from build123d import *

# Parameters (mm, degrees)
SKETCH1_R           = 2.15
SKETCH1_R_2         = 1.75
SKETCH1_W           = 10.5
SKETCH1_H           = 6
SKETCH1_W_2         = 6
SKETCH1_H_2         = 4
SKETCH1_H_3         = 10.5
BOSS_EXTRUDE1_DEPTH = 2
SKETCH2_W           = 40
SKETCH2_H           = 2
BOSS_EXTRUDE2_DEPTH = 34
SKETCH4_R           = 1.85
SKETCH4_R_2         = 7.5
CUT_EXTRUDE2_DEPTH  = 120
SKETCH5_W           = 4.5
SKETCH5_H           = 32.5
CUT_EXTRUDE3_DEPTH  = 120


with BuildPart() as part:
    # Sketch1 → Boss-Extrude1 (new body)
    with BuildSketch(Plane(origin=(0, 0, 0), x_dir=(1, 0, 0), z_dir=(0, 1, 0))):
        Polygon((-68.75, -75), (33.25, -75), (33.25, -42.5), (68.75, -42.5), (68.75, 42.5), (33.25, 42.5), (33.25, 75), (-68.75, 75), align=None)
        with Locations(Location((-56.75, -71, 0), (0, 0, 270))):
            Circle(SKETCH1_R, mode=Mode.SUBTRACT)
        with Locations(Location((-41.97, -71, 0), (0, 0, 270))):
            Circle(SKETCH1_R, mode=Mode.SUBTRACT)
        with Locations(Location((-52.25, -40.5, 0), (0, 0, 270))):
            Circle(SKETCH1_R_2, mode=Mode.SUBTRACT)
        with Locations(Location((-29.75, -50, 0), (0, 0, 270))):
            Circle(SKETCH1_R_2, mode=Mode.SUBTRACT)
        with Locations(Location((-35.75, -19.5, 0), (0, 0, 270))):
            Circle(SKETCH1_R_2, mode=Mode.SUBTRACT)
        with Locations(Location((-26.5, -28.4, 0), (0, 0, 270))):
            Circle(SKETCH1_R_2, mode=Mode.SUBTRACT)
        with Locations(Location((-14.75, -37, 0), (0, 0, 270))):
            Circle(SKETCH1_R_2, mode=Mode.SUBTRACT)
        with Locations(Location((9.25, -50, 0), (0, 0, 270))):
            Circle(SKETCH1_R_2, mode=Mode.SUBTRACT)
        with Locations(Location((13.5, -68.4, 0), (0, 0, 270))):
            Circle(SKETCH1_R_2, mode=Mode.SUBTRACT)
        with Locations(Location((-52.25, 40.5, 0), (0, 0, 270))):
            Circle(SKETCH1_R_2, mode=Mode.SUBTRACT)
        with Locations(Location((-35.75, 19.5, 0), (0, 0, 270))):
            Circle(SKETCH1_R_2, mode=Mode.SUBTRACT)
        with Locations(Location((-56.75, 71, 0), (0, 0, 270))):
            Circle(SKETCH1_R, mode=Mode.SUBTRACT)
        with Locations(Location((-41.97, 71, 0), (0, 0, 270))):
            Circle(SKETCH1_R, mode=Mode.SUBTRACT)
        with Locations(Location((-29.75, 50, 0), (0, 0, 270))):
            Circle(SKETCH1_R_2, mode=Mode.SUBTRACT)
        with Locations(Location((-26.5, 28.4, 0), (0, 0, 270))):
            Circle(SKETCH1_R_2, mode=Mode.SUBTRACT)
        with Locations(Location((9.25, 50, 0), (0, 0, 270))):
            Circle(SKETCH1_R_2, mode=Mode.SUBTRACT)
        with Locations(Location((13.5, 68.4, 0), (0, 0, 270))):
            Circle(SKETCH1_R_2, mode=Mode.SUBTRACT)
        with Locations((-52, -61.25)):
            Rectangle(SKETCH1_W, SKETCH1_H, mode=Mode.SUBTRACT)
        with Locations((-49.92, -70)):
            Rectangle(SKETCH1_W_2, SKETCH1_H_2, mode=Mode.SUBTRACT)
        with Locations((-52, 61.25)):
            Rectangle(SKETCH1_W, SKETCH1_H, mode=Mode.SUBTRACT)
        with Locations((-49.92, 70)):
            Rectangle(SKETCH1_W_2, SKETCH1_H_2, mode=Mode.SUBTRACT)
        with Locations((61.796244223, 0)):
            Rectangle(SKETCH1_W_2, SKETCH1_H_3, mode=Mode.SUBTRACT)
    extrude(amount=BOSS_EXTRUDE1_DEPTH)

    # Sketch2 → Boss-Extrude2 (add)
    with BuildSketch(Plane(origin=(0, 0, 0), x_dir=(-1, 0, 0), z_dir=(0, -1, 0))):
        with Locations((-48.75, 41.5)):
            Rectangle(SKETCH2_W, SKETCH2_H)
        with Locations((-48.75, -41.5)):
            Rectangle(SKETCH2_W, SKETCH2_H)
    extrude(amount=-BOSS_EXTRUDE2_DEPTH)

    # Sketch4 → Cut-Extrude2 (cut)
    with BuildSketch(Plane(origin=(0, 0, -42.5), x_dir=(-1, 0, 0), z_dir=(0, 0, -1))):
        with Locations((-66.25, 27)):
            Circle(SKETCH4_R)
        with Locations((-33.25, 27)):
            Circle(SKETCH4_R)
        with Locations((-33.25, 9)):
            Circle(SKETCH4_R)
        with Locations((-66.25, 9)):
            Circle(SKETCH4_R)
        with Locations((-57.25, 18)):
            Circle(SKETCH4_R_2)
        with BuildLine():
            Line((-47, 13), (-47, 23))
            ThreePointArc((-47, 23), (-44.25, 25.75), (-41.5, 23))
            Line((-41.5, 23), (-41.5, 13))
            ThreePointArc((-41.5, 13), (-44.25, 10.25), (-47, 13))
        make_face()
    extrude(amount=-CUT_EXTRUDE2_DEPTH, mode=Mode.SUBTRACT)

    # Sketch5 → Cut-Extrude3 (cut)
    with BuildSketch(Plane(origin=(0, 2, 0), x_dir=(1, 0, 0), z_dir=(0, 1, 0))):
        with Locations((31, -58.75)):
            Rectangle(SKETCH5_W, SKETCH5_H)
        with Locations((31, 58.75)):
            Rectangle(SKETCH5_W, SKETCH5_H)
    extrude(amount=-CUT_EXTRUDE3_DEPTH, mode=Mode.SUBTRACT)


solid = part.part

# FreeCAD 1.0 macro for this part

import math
import FreeCAD as App
import Part
import Sketcher
from FreeCAD import Vector


def add_polygon(sketch, points):
    """Adds a closed chain of lines whose ends are joined by coincident constraints."""
    first, n = sketch.GeometryCount, len(points)
    for a, b in zip(points, points[1:] + points[:1]):
        sketch.addGeometry(Part.LineSegment(App.Vector(*a, 0), App.Vector(*b, 0)), False)
    for i in range(n):
        sketch.addConstraint(Sketcher.Constraint("Coincident", first + i, 2, first + (i + 1) % n, 1))

doc = App.newDocument("Part")
body = doc.addObject("PartDesign::Body", "Body")

sketch1 = body.newObject("Sketcher::SketchObject", "Sketch")
sketch1.AttachmentSupport = (doc.getObject("XZ_Plane"), [""])
sketch1.MapMode = "FlatFace"
add_polygon(sketch1, [(-68.8, 75), (33.2, 75), (33.2, 42.5), (68.8, 42.5), (68.8, -42.5), (33.2, -42.5), (33.2, -75), (-68.8, -75)])
sketch1.addGeometry(Part.Circle(Vector(-56.8, 71, 0), Vector(0, 0, 1), 2.1), False)
add_polygon(sketch1, [(-46.9, 72), (-52.9, 72), (-52.9, 68), (-46.9, 68)])
add_polygon(sketch1, [(-46.8, 64.2), (-57.2, 64.2), (-57.2, 58.2), (-46.8, 58.2)])
sketch1.addGeometry(Part.Circle(Vector(-42, 71, 0), Vector(0, 0, 1), 2.1), False)
sketch1.addGeometry(Part.Circle(Vector(-52.2, 40.5, 0), Vector(0, 0, 1), 1.8), False)
sketch1.addGeometry(Part.Circle(Vector(-29.8, 50, 0), Vector(0, 0, 1), 1.8), False)
sketch1.addGeometry(Part.Circle(Vector(-14.8, 37, 0), Vector(0, 0, 1), 1.8), False)
sketch1.addGeometry(Part.Circle(Vector(-35.8, 19.5, 0), Vector(0, 0, 1), 1.8), False)
sketch1.addGeometry(Part.Circle(Vector(-26.5, 28.4, 0), Vector(0, 0, 1), 1.8), False)
sketch1.addGeometry(Part.Circle(Vector(13.5, 68.4, 0), Vector(0, 0, 1), 1.8), False)
sketch1.addGeometry(Part.Circle(Vector(9.2, 50, 0), Vector(0, 0, 1), 1.8), False)
sketch1.addGeometry(Part.Circle(Vector(-35.8, -19.5, 0), Vector(0, 0, 1), 1.8), False)
sketch1.addGeometry(Part.Circle(Vector(-26.5, -28.4, 0), Vector(0, 0, 1), 1.8), False)
sketch1.addGeometry(Part.Circle(Vector(-52.2, -40.5, 0), Vector(0, 0, 1), 1.8), False)
sketch1.addGeometry(Part.Circle(Vector(-29.8, -50, 0), Vector(0, 0, 1), 1.8), False)
add_polygon(sketch1, [(-46.8, -58.2), (-57.2, -58.2), (-57.2, -64.2), (-46.8, -64.2)])
sketch1.addGeometry(Part.Circle(Vector(-56.8, -71, 0), Vector(0, 0, 1), 2.1), False)
add_polygon(sketch1, [(-46.9, -68), (-52.9, -68), (-52.9, -72), (-46.9, -72)])
sketch1.addGeometry(Part.Circle(Vector(-42, -71, 0), Vector(0, 0, 1), 2.1), False)
add_polygon(sketch1, [(64.8, 5.2), (58.8, 5.2), (58.8, -5.2), (64.8, -5.2)])
sketch1.addGeometry(Part.Circle(Vector(9.2, -50, 0), Vector(0, 0, 1), 1.8), False)
sketch1.addGeometry(Part.Circle(Vector(13.5, -68.4, 0), Vector(0, 0, 1), 1.8), False)
sketch1.addConstraint([
    Sketcher.Constraint("Horizontal", 0),
    Sketcher.Constraint("Vertical", 1),
    Sketcher.Constraint("Horizontal", 2),
    Sketcher.Constraint("Vertical", 3),
    Sketcher.Constraint("Horizontal", 4),
    Sketcher.Constraint("Vertical", 5),
    Sketcher.Constraint("Horizontal", 6),
    Sketcher.Constraint("Vertical", 7),
    Sketcher.Constraint("Horizontal", 9),
    Sketcher.Constraint("Vertical", 10),
    Sketcher.Constraint("Horizontal", 11),
    Sketcher.Constraint("Vertical", 12),
    Sketcher.Constraint("Horizontal", 13),
    Sketcher.Constraint("Vertical", 14),
    Sketcher.Constraint("Horizontal", 15),
    Sketcher.Constraint("Vertical", 16),
    Sketcher.Constraint("Horizontal", 29),
    Sketcher.Constraint("Vertical", 30),
    Sketcher.Constraint("Horizontal", 31),
    Sketcher.Constraint("Vertical", 32),
    Sketcher.Constraint("Horizontal", 34),
    Sketcher.Constraint("Vertical", 35),
    Sketcher.Constraint("Horizontal", 36),
    Sketcher.Constraint("Vertical", 37),
    Sketcher.Constraint("Horizontal", 39),
    Sketcher.Constraint("Vertical", 40),
    Sketcher.Constraint("Horizontal", 41),
    Sketcher.Constraint("Vertical", 42),
    Sketcher.Constraint("Equal", 8, 17),
    Sketcher.Constraint("Equal", 18, 19),
    Sketcher.Constraint("Equal", 19, 20),
    Sketcher.Constraint("Equal", 20, 21),
    Sketcher.Constraint("Equal", 21, 22),
    Sketcher.Constraint("Equal", 22, 23),
    Sketcher.Constraint("Equal", 23, 24),
    Sketcher.Constraint("Equal", 24, 25),
    Sketcher.Constraint("Equal", 25, 26),
    Sketcher.Constraint("Equal", 26, 27),
    Sketcher.Constraint("Equal", 27, 28),
    Sketcher.Constraint("Equal", 17, 33),
    Sketcher.Constraint("Equal", 33, 38),
    Sketcher.Constraint("Equal", 28, 43),
    Sketcher.Constraint("Equal", 43, 44),
    Sketcher.Constraint("Symmetric", 21, 3, 25, 3, -1),
    Sketcher.Constraint("Symmetric", 22, 3, 26, 3, -1),
    Sketcher.Constraint("Symmetric", 18, 3, 27, 3, -1),
    Sketcher.Constraint("Symmetric", 19, 3, 28, 3, -1),
    Sketcher.Constraint("Symmetric", 8, 3, 33, 3, -1),
    Sketcher.Constraint("Symmetric", 17, 3, 38, 3, -1),
    Sketcher.Constraint("Symmetric", 24, 3, 43, 3, -1),
    Sketcher.Constraint("Symmetric", 23, 3, 44, 3, -1),
    Sketcher.Constraint("Symmetric", 1, 2, 4, 2, -1),
    Sketcher.Constraint("Symmetric", 14, 2, 29, 2, -1),
    Sketcher.Constraint("Symmetric", 16, 2, 31, 2, -1),
    Sketcher.Constraint("Symmetric", 10, 2, 34, 2, -1),
    Sketcher.Constraint("Symmetric", 12, 2, 36, 2, -1),
    Sketcher.Constraint("Horizontal", 8, 3, 17, 3),
    Sketcher.Constraint("Horizontal", 19, 3, 24, 3),
    Sketcher.Constraint("Equal", 36, 39),
    Sketcher.Constraint("Equal", 1, 5),
    Sketcher.Constraint("Equal", 41, 14),
    Sketcher.Constraint("Equal", 31, 40),
    Sketcher.Constraint("Diameter", 8, 4.3),
    Sketcher.Constraint("Diameter", 18, 3.5),
    Sketcher.Constraint("DistanceX", 0, 1, 0, 2, 102.0),
    Sketcher.Constraint("DistanceX", 9, 2, 9, 1, 6.0),
    Sketcher.Constraint("DistanceY", 3, 2, 3, 1, 85.0),
    Sketcher.Constraint("DistanceY", 7, 1, 7, 2, 150.0),
    Sketcher.Constraint("DistanceY", 10, 2, 10, 1, 4.0),
    Sketcher.Constraint("DistanceX", 2, 1, 2, 2, 35.5),
    Sketcher.Constraint("DistanceX", 13, 2, 13, 1, 10.5),
    Sketcher.Constraint("DistanceY", -1, 1, 8, 3, 71.0),
    Sketcher.Constraint("DistanceY", -1, 1, 19, 3, 50.0),
    Sketcher.Constraint("DistanceY", -1, 1, 20, 3, 37.0),
    Sketcher.Constraint("DistanceY", -1, 1, 9, 2, 72.0),
    Sketcher.Constraint("DistanceX", 8, 3, 19, 3, 27.0),
    Sketcher.Constraint("DistanceX", 19, 3, 20, 3, 15.0),
    Sketcher.Constraint("DistanceY", 21, 3, 18, 3, 21.0),
    Sketcher.Constraint("DistanceX", 21, 3, 20, 3, 21.0),
    Sketcher.Constraint("DistanceX", 22, 3, 23, 3, 40.0),
    Sketcher.Constraint("DistanceY", 22, 3, 23, 3, 40.0),
    Sketcher.Constraint("DistanceX", 20, 3, 24, 3, 24.0),
    Sketcher.Constraint("DistanceY", 25, 3, 21, 3, 39.0),
    Sketcher.Constraint("DistanceX", 24, 3, 0, 2, 24.0),
    Sketcher.Constraint("DistanceX", 29, 2, 27, 3, 5.0),
    Sketcher.Constraint("DistanceX", 33, 3, 31, 2, 10.0),
    Sketcher.Constraint("DistanceX", 22, 3, -1, 1, 26.5),
    Sketcher.Constraint("DistanceY", -1, 1, 22, 3, 28.4),
    Sketcher.Constraint("DistanceX", 8, 3, -1, 1, 56.75),
    Sketcher.Constraint("DistanceX", 17, 3, -1, 1, 41.97),
    Sketcher.Constraint("DistanceX", 9, 2, -1, 1, 52.92),
    Sketcher.Constraint("DistanceY", -1, 1, 13, 2, 64.25),
    Sketcher.Constraint("DistanceY", -1, 1, 39, 2, 5.25),
    Sketcher.Constraint("DistanceX", -1, 1, 39, 2, 58.796244),
])
pad1 = body.newObject("PartDesign::Pad", "Pad")
pad1.Profile = sketch1
pad1.Length = 2
pad1.Reversed = True

sketch2 = body.newObject("Sketcher::SketchObject", "Sketch001")
sketch2.AttachmentSupport = (doc.getObject("XZ_Plane"), [""])
sketch2.MapMode = "FlatFace"
add_polygon(sketch2, [(68.8, -42.5), (68.8, -40.5), (28.8, -40.5), (28.8, -42.5)])
add_polygon(sketch2, [(68.8, 40.5), (68.8, 42.5), (28.8, 42.5), (28.8, 40.5)])
sketch2.addConstraint([
    Sketcher.Constraint("Vertical", 0),
    Sketcher.Constraint("Horizontal", 1),
    Sketcher.Constraint("Vertical", 2),
    Sketcher.Constraint("Horizontal", 3),
    Sketcher.Constraint("Vertical", 4),
    Sketcher.Constraint("Horizontal", 5),
    Sketcher.Constraint("Vertical", 6),
    Sketcher.Constraint("Horizontal", 7),
    Sketcher.Constraint("Symmetric", 3, 2, 4, 2, -1),
    Sketcher.Constraint("Symmetric", 1, 2, 6, 2, -1),
    Sketcher.Constraint("DistanceX", 1, 2, 1, 1, 40.0),
    Sketcher.Constraint("DistanceY", 0, 1, 0, 2, 2.0),
    Sketcher.Constraint("DistanceY", 0, 2, 4, 2, 83.0),
    Sketcher.Constraint("DistanceX", -1, 1, 0, 2, 68.75),
])
pad2 = body.newObject("PartDesign::Pad", "Pad001")
pad2.Profile = sketch2
pad2.Length = 34
pad2.Reversed = True

sketch3 = body.newObject("Sketcher::SketchObject", "Sketch002")
sketch3.AttachmentSupport = (doc.getObject("XY_Plane"), [""])
sketch3.MapMode = "FlatFace"
sketch3.AttachmentOffset = App.Placement(Vector(0, 0, -42.5), App.Rotation())
sketch3.addGeometry([
    Part.Circle(Vector(66.2, 27, 0), Vector(0, 0, 1), 1.9),
    Part.Circle(Vector(33.2, 27, 0), Vector(0, 0, 1), 1.9),
    Part.Circle(Vector(33.2, 9, 0), Vector(0, 0, 1), 1.9),
    Part.Circle(Vector(66.2, 9, 0), Vector(0, 0, 1), 1.9),
    Part.Circle(Vector(57.2, 18, 0), Vector(0, 0, 1), 7.5),
    Part.LineSegment(Vector(47, 23, 0), Vector(47, 13, 0)),
    Part.ArcOfCircle(Part.Circle(Vector(44.2, 13, 0), Vector(0, 0, 1), 2.8), math.radians(180), math.radians(360)),
    Part.LineSegment(Vector(41.5, 13, 0), Vector(41.5, 23, 0)),
    Part.ArcOfCircle(Part.Circle(Vector(44.2, 23, 0), Vector(0, 0, 1), 2.8), math.radians(0), math.radians(180)),
], False)
sketch3.addConstraint([
    Sketcher.Constraint("Tangent", 5, 2, 6, 2),
    Sketcher.Constraint("Tangent", 6, 1, 7, 1),
    Sketcher.Constraint("Tangent", 7, 2, 8, 2),
    Sketcher.Constraint("Tangent", 8, 1, 5, 1),
    Sketcher.Constraint("Vertical", 5),
    Sketcher.Constraint("Vertical", 7),
    Sketcher.Constraint("Equal", 0, 1),
    Sketcher.Constraint("Equal", 1, 2),
    Sketcher.Constraint("Equal", 2, 3),
    Sketcher.Constraint("Horizontal", 0, 3, 1, 3),
    Sketcher.Constraint("Horizontal", 2, 3, 3, 3),
    Sketcher.Constraint("Vertical", 1, 3, 2, 3),
    Sketcher.Constraint("Vertical", 0, 3, 3, 3),
    Sketcher.Constraint("Diameter", 4, 15.0),
    Sketcher.Constraint("Diameter", 0, 3.7),
    Sketcher.Constraint("DistanceY", 5, 2, 5, 1, 10.0),
    Sketcher.Constraint("Radius", 6, 2.75),
    Sketcher.Constraint("DistanceY", -1, 1, 0, 3, 27.0),
    Sketcher.Constraint("DistanceY", -1, 1, 2, 3, 9.0),
    Sketcher.Constraint("DistanceY", -1, 1, 4, 3, 18.0),
    Sketcher.Constraint("DistanceY", -1, 1, 6, 3, 13.0),
    Sketcher.Constraint("DistanceX", -1, 1, 5, 2, 47.0),
    Sketcher.Constraint("DistanceX", 1, 3, 0, 3, 33.0),
    Sketcher.Constraint("DistanceX", 4, 3, 0, 3, 9.0),
    Sketcher.Constraint("DistanceX", 2, 3, 6, 3, 11.0),
])
pocket1 = body.newObject("PartDesign::Pocket", "Pocket")
pocket1.Profile = sketch3
pocket1.Length = 120
pocket1.Reversed = True

sketch4 = body.newObject("Sketcher::SketchObject", "Sketch003")
sketch4.AttachmentSupport = (doc.getObject("XZ_Plane"), [""])
sketch4.MapMode = "FlatFace"
sketch4.AttachmentOffset = App.Placement(Vector(0, 0, -2), App.Rotation())
add_polygon(sketch4, [(28.8, 42.5), (28.8, 75), (33.2, 75), (33.2, 42.5)])
add_polygon(sketch4, [(28.8, -75), (28.8, -42.5), (33.2, -42.5), (33.2, -75)])
sketch4.addConstraint([
    Sketcher.Constraint("Vertical", 0),
    Sketcher.Constraint("Horizontal", 1),
    Sketcher.Constraint("Vertical", 2),
    Sketcher.Constraint("Horizontal", 3),
    Sketcher.Constraint("Vertical", 4),
    Sketcher.Constraint("Horizontal", 5),
    Sketcher.Constraint("Vertical", 6),
    Sketcher.Constraint("Horizontal", 7),
    Sketcher.Constraint("Symmetric", 3, 2, 4, 2, -1),
    Sketcher.Constraint("Symmetric", 1, 2, 6, 2, -1),
    Sketcher.Constraint("DistanceX", 1, 1, 1, 2, 4.5),
    Sketcher.Constraint("DistanceY", 0, 1, 0, 2, 32.5),
    Sketcher.Constraint("DistanceY", -1, 1, 0, 2, 75.0),
    Sketcher.Constraint("DistanceX", -1, 1, 0, 2, 28.75),
])
pocket2 = body.newObject("PartDesign::Pocket", "Pocket001")
pocket2.Profile = sketch4
pocket2.Length = 120
pocket2.Reversed = True

doc.recompute()
